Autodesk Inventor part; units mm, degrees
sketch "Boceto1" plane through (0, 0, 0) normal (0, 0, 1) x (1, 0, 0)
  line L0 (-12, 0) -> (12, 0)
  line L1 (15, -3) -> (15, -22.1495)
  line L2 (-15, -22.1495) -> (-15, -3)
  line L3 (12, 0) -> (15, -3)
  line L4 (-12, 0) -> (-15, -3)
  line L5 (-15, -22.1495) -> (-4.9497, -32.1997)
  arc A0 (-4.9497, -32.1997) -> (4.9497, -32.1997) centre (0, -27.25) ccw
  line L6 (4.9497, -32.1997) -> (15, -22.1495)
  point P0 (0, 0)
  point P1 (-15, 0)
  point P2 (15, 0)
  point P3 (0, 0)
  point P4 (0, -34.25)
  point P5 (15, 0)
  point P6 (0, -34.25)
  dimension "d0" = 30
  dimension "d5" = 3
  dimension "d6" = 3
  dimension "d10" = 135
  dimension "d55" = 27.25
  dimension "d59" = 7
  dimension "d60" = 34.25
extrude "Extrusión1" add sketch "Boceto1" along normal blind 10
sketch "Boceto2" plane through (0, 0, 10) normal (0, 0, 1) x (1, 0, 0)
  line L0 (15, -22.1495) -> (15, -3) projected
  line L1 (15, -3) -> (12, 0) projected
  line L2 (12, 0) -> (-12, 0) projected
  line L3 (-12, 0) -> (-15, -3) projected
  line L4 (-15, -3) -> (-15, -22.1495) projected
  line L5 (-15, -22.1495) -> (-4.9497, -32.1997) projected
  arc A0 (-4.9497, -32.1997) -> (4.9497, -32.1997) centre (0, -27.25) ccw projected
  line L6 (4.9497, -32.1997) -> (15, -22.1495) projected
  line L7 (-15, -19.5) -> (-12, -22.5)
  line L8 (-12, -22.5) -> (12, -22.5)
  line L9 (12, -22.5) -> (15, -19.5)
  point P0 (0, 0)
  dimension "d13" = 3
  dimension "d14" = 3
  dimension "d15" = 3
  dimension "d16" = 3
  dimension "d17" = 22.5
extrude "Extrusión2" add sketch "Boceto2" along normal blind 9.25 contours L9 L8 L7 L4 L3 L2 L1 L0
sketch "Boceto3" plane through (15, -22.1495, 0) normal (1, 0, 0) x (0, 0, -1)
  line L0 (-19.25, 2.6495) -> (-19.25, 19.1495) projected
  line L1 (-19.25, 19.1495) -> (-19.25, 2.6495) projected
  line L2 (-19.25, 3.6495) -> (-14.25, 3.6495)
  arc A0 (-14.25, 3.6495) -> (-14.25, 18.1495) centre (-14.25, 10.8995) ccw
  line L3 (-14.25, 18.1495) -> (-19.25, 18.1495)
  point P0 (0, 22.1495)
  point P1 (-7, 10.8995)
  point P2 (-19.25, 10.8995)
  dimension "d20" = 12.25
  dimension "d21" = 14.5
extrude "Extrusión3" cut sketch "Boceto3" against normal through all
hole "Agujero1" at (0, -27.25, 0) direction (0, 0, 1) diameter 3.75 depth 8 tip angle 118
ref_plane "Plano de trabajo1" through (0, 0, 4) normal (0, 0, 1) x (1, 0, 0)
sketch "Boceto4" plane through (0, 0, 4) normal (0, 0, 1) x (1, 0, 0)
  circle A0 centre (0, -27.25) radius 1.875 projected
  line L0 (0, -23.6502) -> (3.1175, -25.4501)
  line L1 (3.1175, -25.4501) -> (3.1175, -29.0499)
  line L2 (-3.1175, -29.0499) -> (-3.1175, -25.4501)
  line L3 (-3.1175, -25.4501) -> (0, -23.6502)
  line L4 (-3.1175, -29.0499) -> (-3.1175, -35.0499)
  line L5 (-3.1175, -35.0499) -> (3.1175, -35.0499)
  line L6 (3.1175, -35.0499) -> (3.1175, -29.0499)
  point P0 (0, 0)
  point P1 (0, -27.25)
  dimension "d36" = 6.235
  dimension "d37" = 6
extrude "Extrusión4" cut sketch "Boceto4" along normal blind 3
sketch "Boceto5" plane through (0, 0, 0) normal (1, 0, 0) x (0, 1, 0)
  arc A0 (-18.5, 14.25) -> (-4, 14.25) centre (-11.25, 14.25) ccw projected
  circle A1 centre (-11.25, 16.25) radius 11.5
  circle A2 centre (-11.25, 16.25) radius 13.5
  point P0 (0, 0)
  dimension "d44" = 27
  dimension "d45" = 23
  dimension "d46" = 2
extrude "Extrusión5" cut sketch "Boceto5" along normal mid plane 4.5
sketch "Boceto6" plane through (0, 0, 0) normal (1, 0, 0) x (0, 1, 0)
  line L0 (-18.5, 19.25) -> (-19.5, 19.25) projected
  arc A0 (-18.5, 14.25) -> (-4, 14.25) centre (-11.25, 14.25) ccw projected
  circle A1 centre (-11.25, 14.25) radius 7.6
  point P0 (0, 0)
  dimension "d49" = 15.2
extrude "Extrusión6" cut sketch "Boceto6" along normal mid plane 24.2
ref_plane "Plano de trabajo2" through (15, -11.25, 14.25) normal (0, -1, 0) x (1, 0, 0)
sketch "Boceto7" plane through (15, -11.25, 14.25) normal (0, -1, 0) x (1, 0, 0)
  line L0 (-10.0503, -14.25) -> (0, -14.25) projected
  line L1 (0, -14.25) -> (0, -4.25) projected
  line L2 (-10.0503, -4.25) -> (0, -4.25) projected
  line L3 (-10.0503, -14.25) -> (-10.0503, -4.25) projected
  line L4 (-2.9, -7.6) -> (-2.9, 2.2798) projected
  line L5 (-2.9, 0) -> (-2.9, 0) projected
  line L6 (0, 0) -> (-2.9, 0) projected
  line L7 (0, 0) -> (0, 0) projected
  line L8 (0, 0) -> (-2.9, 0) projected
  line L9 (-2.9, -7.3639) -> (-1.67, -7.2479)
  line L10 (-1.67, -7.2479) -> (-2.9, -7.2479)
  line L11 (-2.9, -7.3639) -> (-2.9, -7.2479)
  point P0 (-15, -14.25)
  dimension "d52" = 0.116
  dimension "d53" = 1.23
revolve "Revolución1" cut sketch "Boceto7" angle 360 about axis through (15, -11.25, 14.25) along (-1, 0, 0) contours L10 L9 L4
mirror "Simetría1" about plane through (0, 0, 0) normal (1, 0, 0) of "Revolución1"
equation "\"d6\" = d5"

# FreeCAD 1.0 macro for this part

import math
import FreeCAD as App
import Part
import Sketcher
from FreeCAD import Vector
Q = App.Units.Quantity

doc = App.newDocument("Part")
params = doc.addObject("Spreadsheet::Sheet", "Params")
for row, (alias, value) in enumerate([
    ("sketch1_radius", "7 mm"),
    ("pad1_length", "10 mm"),
    ("sketch2_width", "24 mm"),
    ("pad2_length", "9.25 mm"),
    ("sketch3_radius", "7.25 mm"),
    ("sketch3_height", "5 mm"),
    ("sketch4_diameter", "3.75 mm"),
    ("hole_diameter", "3.75 mm"),
    ("hole_depth", "8 mm"),
    ("sketch5_diameter", "3.75 mm"),
    ("pocket2_length", "3 mm"),
    ("sketch6_diameter", "27 mm"),
    ("sketch6_diameter2", "23 mm"),
    ("pocket3_length", "4.5 mm"),
    ("sketch7_diameter", "15.2 mm"),
    ("pocket4_length", "24.2 mm"),
    ("sketch8_width", "1.23 mm"),
    ("groove_angle", "360 deg"),
], start=1):
    params.set(f"A{row}", alias)
    params.set(f"B{row}", "=" + value)
    params.setAlias(f"B{row}", alias)

body = doc.addObject("PartDesign::Body", "Body")

sketch1 = body.newObject("Sketcher::SketchObject", "Sketch")
sketch1.AttachmentSupport = (doc.getObject("XY_Plane"), [""])
sketch1.MapMode = "FlatFace"
sketch1.addGeometry([
    Part.LineSegment(Vector(12, 0, 0), Vector(-12, 0, 0)),
    Part.LineSegment(Vector(-12, 0, 0), Vector(-15, -3, 0)),
    Part.LineSegment(Vector(-15, -3, 0), Vector(-15, -22.1, 0)),
    Part.LineSegment(Vector(-15, -22.1, 0), Vector(-4.9, -32.2, 0)),
    Part.ArcOfCircle(Part.Circle(Vector(0, -27.2, 0), Vector(0, 0, 1), 7), math.radians(-135), math.radians(-45)),
    Part.LineSegment(Vector(4.9, -32.2, 0), Vector(15, -22.1, 0)),
    Part.LineSegment(Vector(15, -22.1, 0), Vector(15, -3, 0)),
    Part.LineSegment(Vector(15, -3, 0), Vector(12, 0, 0)),
], False)
sketch1.addConstraint([
    Sketcher.Constraint("Coincident", 0, 2, 1, 1),
    Sketcher.Constraint("Coincident", 1, 2, 2, 1),
    Sketcher.Constraint("Coincident", 2, 2, 3, 1),
    Sketcher.Constraint("Tangent", 3, 2, 4, 1),
    Sketcher.Constraint("Tangent", 4, 2, 5, 1),
    Sketcher.Constraint("Coincident", 5, 2, 6, 1),
    Sketcher.Constraint("Coincident", 6, 2, 7, 1),
    Sketcher.Constraint("Coincident", 7, 2, 0, 1),
    Sketcher.Constraint("Horizontal", 0),
    Sketcher.Constraint("Vertical", 2),
    Sketcher.Constraint("Vertical", 6),
    Sketcher.Constraint("Symmetric", 0, 2, 7, 2, -1, 1),
    Sketcher.Constraint("Symmetric", 3, 2, 4, 2, -2),
    Sketcher.Constraint("Symmetric", 1, 2, 6, 2, -2),
    Sketcher.Constraint("Perpendicular", 1, 3),
    Sketcher.Constraint("Perpendicular", 3, 5),
    Sketcher.Constraint("Radius", 4, Q("7 mm")),
    Sketcher.Constraint("DistanceY", 1, 2, -1, 1, Q("3 mm")),
    Sketcher.Constraint("DistanceX", 2, 2, 5, 2, Q("30 mm")),
    Sketcher.Constraint("DistanceY", 4, 3, -1, 1, Q("27.25 mm")),
])
sketch1.setExpression("Constraints[16]", "Params.sketch1_radius")
pad1 = body.newObject("PartDesign::Pad", "Pad")
pad1.Profile = sketch1
pad1.setExpression("Length", "Params.pad1_length")

sketch2 = body.newObject("Sketcher::SketchObject", "Sketch001")
sketch2.AttachmentSupport = (doc.getObject("XY_Plane"), [""])
sketch2.MapMode = "FlatFace"
sketch2.AttachmentOffset = App.Placement(Vector(0, 0, 10), App.Rotation())
sketch2.addGeometry([
    Part.LineSegment(Vector(12, -22.5, 0), Vector(15, -19.5, 0)),
    Part.LineSegment(Vector(15, -19.5, 0), Vector(15, -3, 0)),
    Part.LineSegment(Vector(15, -3, 0), Vector(12, 0, 0)),
    Part.LineSegment(Vector(12, 0, 0), Vector(-12, 0, 0)),
    Part.LineSegment(Vector(-12, 0, 0), Vector(-15, -3, 0)),
    Part.LineSegment(Vector(-15, -3, 0), Vector(-15, -19.5, 0)),
    Part.LineSegment(Vector(-15, -19.5, 0), Vector(-12, -22.5, 0)),
    Part.LineSegment(Vector(-12, -22.5, 0), Vector(12, -22.5, 0)),
], False)
sketch2.addConstraint([
    Sketcher.Constraint("Coincident", 0, 2, 1, 1),
    Sketcher.Constraint("Coincident", 1, 2, 2, 1),
    Sketcher.Constraint("Coincident", 2, 2, 3, 1),
    Sketcher.Constraint("Coincident", 3, 2, 4, 1),
    Sketcher.Constraint("Coincident", 4, 2, 5, 1),
    Sketcher.Constraint("Coincident", 5, 2, 6, 1),
    Sketcher.Constraint("Coincident", 6, 2, 7, 1),
    Sketcher.Constraint("Coincident", 7, 2, 0, 1),
    Sketcher.Constraint("Vertical", 1),
    Sketcher.Constraint("Horizontal", 3),
    Sketcher.Constraint("Vertical", 5),
    Sketcher.Constraint("Horizontal", 7),
    Sketcher.Constraint("Symmetric", 2, 2, 3, 2, -1, 1),
    Sketcher.Constraint("Symmetric", 1, 2, 4, 2, -2),
    Sketcher.Constraint("Perpendicular", 0, 2),
    Sketcher.Constraint("Perpendicular", 2, 4),
    Sketcher.Constraint("Perpendicular", 4, 6),
    Sketcher.Constraint("Horizontal", 0, 2, 5, 2),
    Sketcher.Constraint("Vertical", 3, 2, 6, 2),
    Sketcher.Constraint("DistanceY", 1, 2, -1, 1, Q("3 mm")),
    Sketcher.Constraint("DistanceY", 6, 2, -1, 1, Q("22.5 mm")),
    Sketcher.Constraint("DistanceX", 3, 2, 3, 1, Q("24 mm")),
])
sketch2.setExpression("Constraints[21]", "Params.sketch2_width")
pad2 = body.newObject("PartDesign::Pad", "Pad001")
pad2.Profile = sketch2
pad2.setExpression("Length", "Params.pad2_length")

sketch3 = body.newObject("Sketcher::SketchObject", "Sketch002")
sketch3.AttachmentSupport = (doc.getObject("YZ_Plane"), [""])
sketch3.MapMode = "FlatFace"
sketch3.AttachmentOffset = App.Placement(Vector(0, 0, 15), App.Rotation())
sketch3.addGeometry([
    Part.LineSegment(Vector(-4, 19, 0), Vector(-18, 19, 0)),
    Part.LineSegment(Vector(-18, 19, 0), Vector(-18, 14, 0)),
    Part.ArcOfCircle(Part.Circle(Vector(-11, 14, 0), Vector(0, 0, 1), 7), math.radians(180), math.radians(360)),
    Part.LineSegment(Vector(-4, 14, 0), Vector(-4, 19, 0)),
], False)
sketch3.addConstraint([
    Sketcher.Constraint("Coincident", 0, 2, 1, 1),
    Sketcher.Constraint("Tangent", 1, 2, 2, 1),
    Sketcher.Constraint("Tangent", 2, 2, 3, 1),
    Sketcher.Constraint("Coincident", 3, 2, 0, 1),
    Sketcher.Constraint("Horizontal", 0),
    Sketcher.Constraint("Vertical", 1),
    Sketcher.Constraint("Vertical", 3),
    Sketcher.Constraint("Radius", 2, Q("7.25 mm")),
    Sketcher.Constraint("DistanceY", 1, 2, 1, 1, Q("5 mm")),
    Sketcher.Constraint("DistanceX", 2, 2, -1, 1, Q("4 mm")),
    Sketcher.Constraint("DistanceY", -1, 1, 2, 3, Q("14.25 mm")),
])
sketch3.setExpression("Constraints[7]", "Params.sketch3_radius")
sketch3.setExpression("Constraints[8]", "Params.sketch3_height")
pocket1 = body.newObject("PartDesign::Pocket", "Pocket")
pocket1.Profile = sketch3
pocket1.Type = "ThroughAll"

sketch4 = body.newObject("Sketcher::SketchObject", "Sketch003")
sketch4.AttachmentSupport = (doc.getObject("XY_Plane"), [""])
sketch4.MapMode = "FlatFace"
sketch4.addGeometry(Part.Circle(Vector(0, -27.2, 0), Vector(0, 0, 1), 1.9), False)
sketch4.addConstraint([
    Sketcher.Constraint("PointOnObject", 0, 3, -2),
    Sketcher.Constraint("Diameter", 0, Q("3.75 mm")),
    Sketcher.Constraint("DistanceY", 0, 3, -1, 1, Q("27.25 mm")),
])
sketch4.setExpression("Constraints[1]", "Params.sketch4_diameter")
doc.recompute()
hole = body.newObject("PartDesign::Hole", "Hole")
hole.Profile = sketch4
hole.ThreadType = "None"
hole.setExpression("Diameter", "Params.hole_diameter")
hole.DepthType = "Dimension"
hole.setExpression("Depth", "Params.hole_depth")
hole.DrillPoint = "Angled"
hole.DrillPointAngle = 118
hole.Reversed = True

sketch5 = body.newObject("Sketcher::SketchObject", "Sketch004")
sketch5.AttachmentSupport = (doc.getObject("XY_Plane"), [""])
sketch5.MapMode = "FlatFace"
sketch5.AttachmentOffset = App.Placement(Vector(0, 0, 4), App.Rotation())
sketch5.addGeometry([
    Part.LineSegment(Vector(3.1, -25.5, 0), Vector(0, -23.7, 0)),
    Part.LineSegment(Vector(0, -23.7, 0), Vector(-3.1, -25.5, 0)),
    Part.LineSegment(Vector(-3.1, -25.5, 0), Vector(-3.1, -35, 0)),
    Part.LineSegment(Vector(-3.1, -35, 0), Vector(3.1, -35, 0)),
    Part.LineSegment(Vector(3.1, -35, 0), Vector(3.1, -25.5, 0)),
    Part.Circle(Vector(0, -27.2, 0), Vector(0, 0, 1), 1.9),
], False)
sketch5.addConstraint([
    Sketcher.Constraint("Coincident", 0, 2, 1, 1),
    Sketcher.Constraint("Coincident", 1, 2, 2, 1),
    Sketcher.Constraint("Coincident", 2, 2, 3, 1),
    Sketcher.Constraint("Coincident", 3, 2, 4, 1),
    Sketcher.Constraint("Coincident", 4, 2, 0, 1),
    Sketcher.Constraint("Vertical", 2),
    Sketcher.Constraint("Horizontal", 3),
    Sketcher.Constraint("Vertical", 4),
    Sketcher.Constraint("Symmetric", 1, 2, 4, 2, -2),
    Sketcher.Constraint("PointOnObject", 5, 3, -2),
    Sketcher.Constraint("PointOnObject", 0, 2, -2),
    Sketcher.Constraint("Diameter", 5, Q("3.75 mm")),
    Sketcher.Constraint("DistanceX", 3, 1, 3, 2, Q("6.235 mm")),
    Sketcher.Constraint("Angle", 0, Q("149.9999 deg")),
    Sketcher.Constraint("DistanceY", 5, 3, 1, 2, Q("1.8 mm")),
    Sketcher.Constraint("DistanceY", 2, 2, 5, 3, Q("7.8 mm")),
    Sketcher.Constraint("DistanceY", 5, 3, -1, 1, Q("27.25 mm")),
])
sketch5.setExpression("Constraints[11]", "Params.sketch5_diameter")
pocket2 = body.newObject("PartDesign::Pocket", "Pocket001")
pocket2.Profile = sketch5
pocket2.setExpression("Length", "Params.pocket2_length")
pocket2.Reversed = True

sketch6 = body.newObject("Sketcher::SketchObject", "Sketch005")
sketch6.AttachmentSupport = (doc.getObject("YZ_Plane"), [""])
sketch6.MapMode = "FlatFace"
sketch6.addGeometry([
    Part.Circle(Vector(-11, 16, 0), Vector(0, 0, 1), 14),
    Part.Circle(Vector(-11, 16, 0), Vector(0, 0, 1), 12),
], False)
sketch6.addConstraint([
    Sketcher.Constraint("Coincident", 1, 3, 0, 3),
    Sketcher.Constraint("Diameter", 0, Q("27 mm")),
    Sketcher.Constraint("Diameter", 1, Q("23 mm")),
    Sketcher.Constraint("DistanceX", 0, 3, -1, 1, Q("11.25 mm")),
    Sketcher.Constraint("DistanceY", -1, 1, 0, 3, Q("16.25 mm")),
])
sketch6.setExpression("Constraints[1]", "Params.sketch6_diameter")
sketch6.setExpression("Constraints[2]", "Params.sketch6_diameter2")
pocket3 = body.newObject("PartDesign::Pocket", "Pocket002")
pocket3.Profile = sketch6
pocket3.setExpression("Length", "Params.pocket3_length")
pocket3.Midplane = True

sketch7 = body.newObject("Sketcher::SketchObject", "Sketch006")
sketch7.AttachmentSupport = (doc.getObject("YZ_Plane"), [""])
sketch7.MapMode = "FlatFace"
sketch7.addGeometry(Part.Circle(Vector(-11, 14, 0), Vector(0, 0, 1), 8), False)
sketch7.addConstraint([
    Sketcher.Constraint("Diameter", 0, Q("15.2 mm")),
    Sketcher.Constraint("DistanceX", 0, 3, -1, 1, Q("11.25 mm")),
    Sketcher.Constraint("DistanceY", -1, 1, 0, 3, Q("14.25 mm")),
])
sketch7.setExpression("Constraints[0]", "Params.sketch7_diameter")
pocket4 = body.newObject("PartDesign::Pocket", "Pocket003")
pocket4.Profile = sketch7
pocket4.setExpression("Length", "Params.pocket4_length")
pocket4.Midplane = True

sketch8 = body.newObject("Sketcher::SketchObject", "Sketch007")
sketch8.AttachmentSupport = (doc.getObject("XZ_Plane"), [""])
sketch8.MapMode = "FlatFace"
sketch8.AttachmentOffset = App.Placement(Vector(0, 0, 11.25), App.Rotation())
sketch8.addGeometry([
    Part.LineSegment(Vector(13.33, 7, 0), Vector(12.1, 7, 0)),
    Part.LineSegment(Vector(12.1, 7, 0), Vector(12.1, 6.89, 0)),
    Part.LineSegment(Vector(12.1, 6.89, 0), Vector(13.33, 7, 0)),
], False)
sketch8.addGeometry(Part.LineSegment(Vector(13.33, 14.25, 0), Vector(12.1, 14.25, 0)), True)
sketch8.addConstraint([
    Sketcher.Constraint("Coincident", 0, 2, 1, 1),
    Sketcher.Constraint("Coincident", 1, 2, 2, 1),
    Sketcher.Constraint("Coincident", 2, 2, 0, 1),
    Sketcher.Constraint("Horizontal", 0),
    Sketcher.Constraint("Vertical", 1),
    Sketcher.Constraint("Horizontal", 3),
    Sketcher.Constraint("Vertical", 2, 2, 3, 1),
    Sketcher.Constraint("Vertical", 1, 2, 3, 2),
    Sketcher.Constraint("DistanceX", 0, 2, 0, 1, Q("1.23 mm")),
    Sketcher.Constraint("DistanceY", 1, 2, 1, 1, Q("0.116 mm")),
    Sketcher.Constraint("DistanceX", -1, 1, 0, 2, Q("12.1 mm")),
    Sketcher.Constraint("DistanceY", -1, 1, 3, 1, Q("14.25 mm")),
    Sketcher.Constraint("DistanceY", -1, 1, 0, 2, Q("7.002 mm")),
])
sketch8.setExpression("Constraints[8]", "Params.sketch8_width")
groove = body.newObject("PartDesign::Groove", "Groove")
groove.Profile = sketch8
groove.ReferenceAxis = (sketch8, ["Axis0"])
groove.setExpression("Angle", "Params.groove_angle")
doc.recompute()

mirrored = body.newObject("PartDesign::Mirrored", "Mirrored")
mirrored.Originals = [groove]
mirrored.MirrorPlane = (doc.getObject("YZ_Plane"), [""])
body.Tip = mirrored

doc.recompute()
